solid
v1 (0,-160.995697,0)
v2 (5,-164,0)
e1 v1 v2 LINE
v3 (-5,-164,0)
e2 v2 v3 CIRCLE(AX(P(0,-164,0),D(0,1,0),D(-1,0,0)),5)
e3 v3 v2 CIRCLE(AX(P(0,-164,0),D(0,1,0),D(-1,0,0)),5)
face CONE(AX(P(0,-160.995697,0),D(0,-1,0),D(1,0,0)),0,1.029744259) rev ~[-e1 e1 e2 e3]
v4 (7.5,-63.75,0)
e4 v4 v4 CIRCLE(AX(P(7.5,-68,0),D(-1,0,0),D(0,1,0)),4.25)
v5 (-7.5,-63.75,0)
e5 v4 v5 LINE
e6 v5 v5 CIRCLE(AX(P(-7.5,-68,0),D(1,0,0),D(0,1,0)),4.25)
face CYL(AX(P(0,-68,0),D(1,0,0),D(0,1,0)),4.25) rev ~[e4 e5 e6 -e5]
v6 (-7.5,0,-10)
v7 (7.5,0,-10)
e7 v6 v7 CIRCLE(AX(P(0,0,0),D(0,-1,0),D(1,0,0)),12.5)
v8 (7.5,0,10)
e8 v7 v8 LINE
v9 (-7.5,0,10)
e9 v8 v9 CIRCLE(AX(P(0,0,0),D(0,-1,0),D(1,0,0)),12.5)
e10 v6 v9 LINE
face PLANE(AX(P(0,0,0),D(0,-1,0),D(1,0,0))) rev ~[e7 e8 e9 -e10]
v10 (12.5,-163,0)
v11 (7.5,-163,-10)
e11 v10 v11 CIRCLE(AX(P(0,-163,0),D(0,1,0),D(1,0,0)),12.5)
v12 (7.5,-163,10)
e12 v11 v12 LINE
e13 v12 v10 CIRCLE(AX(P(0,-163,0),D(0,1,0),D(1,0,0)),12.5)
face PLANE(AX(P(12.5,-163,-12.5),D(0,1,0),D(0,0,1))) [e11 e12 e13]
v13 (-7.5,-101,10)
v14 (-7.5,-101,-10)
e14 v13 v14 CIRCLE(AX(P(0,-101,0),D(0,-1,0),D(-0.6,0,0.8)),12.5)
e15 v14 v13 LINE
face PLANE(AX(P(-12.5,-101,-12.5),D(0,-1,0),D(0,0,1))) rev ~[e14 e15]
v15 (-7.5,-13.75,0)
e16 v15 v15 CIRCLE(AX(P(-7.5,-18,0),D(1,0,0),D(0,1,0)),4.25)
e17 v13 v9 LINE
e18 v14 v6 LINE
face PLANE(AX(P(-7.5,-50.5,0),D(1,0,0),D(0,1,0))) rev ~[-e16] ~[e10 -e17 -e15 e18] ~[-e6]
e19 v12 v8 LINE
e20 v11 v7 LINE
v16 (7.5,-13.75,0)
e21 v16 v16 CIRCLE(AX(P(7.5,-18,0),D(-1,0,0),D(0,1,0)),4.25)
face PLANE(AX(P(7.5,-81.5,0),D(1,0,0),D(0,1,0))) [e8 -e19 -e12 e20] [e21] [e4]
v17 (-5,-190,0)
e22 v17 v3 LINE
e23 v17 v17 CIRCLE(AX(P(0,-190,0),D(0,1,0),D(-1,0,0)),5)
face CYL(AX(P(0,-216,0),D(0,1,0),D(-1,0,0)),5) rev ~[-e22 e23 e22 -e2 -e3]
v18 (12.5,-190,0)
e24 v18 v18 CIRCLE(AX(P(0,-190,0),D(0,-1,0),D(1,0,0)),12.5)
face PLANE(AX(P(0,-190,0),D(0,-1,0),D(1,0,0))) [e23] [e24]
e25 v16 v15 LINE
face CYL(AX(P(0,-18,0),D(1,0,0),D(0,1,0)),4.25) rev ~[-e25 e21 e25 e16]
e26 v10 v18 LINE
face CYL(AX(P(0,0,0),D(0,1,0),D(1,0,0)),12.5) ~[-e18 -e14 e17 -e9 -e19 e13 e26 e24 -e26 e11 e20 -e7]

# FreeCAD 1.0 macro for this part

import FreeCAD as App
import Part
import Sketcher
Q = App.Units.Quantity


def add_polygon(sketch, points):
    """Adds a closed chain of lines whose ends are joined by coincident constraints."""
    first, n = sketch.GeometryCount, len(points)
    for a, b in zip(points, points[1:] + points[:1]):
        sketch.addGeometry(Part.LineSegment(App.Vector(*a, 0), App.Vector(*b, 0)), False)
    for i in range(n):
        sketch.addConstraint(Sketcher.Constraint("Coincident", first + i, 2, first + (i + 1) % n, 1))

doc = App.newDocument("Part")
params = doc.addObject("Spreadsheet::Sheet", "Params")
for row, (alias, value) in enumerate([
    ("sketch1_diameter", "25 mm"),
    ("pad1_length", "190 mm"),
    ("sketch2_diameter", "10 mm"),
    ("hole_diameter", "10 mm"),
    ("hole_depth", "26 mm"),
    ("sketch3_diameter", "8.5 mm"),
    ("sketch4_width", "101 mm"),
    ("sketch4_height", "25 mm"),
    ("pocket2_length", "5 mm"),
    ("sketch5_width", "163 mm"),
    ("sketch5_height", "25 mm"),
    ("pocket3_length", "5 mm"),
], start=1):
    params.set(f"A{row}", alias)
    params.set(f"B{row}", "=" + value)
    params.setAlias(f"B{row}", alias)

body = doc.addObject("PartDesign::Body", "Body")

# Sketch on XZ plane
sketch1 = body.newObject("Sketcher::SketchObject", "Sketch")
sketch1.AttachmentSupport = (doc.getObject("XZ_Plane"), [""])
sketch1.MapMode = "FlatFace"
sketch1.addGeometry(Part.Circle(App.Vector(0, 0, 0), App.Vector(0, 0, 1), 12), False)
sketch1.addConstraint([
    Sketcher.Constraint("Coincident", 0, 3, -1, 1),
    Sketcher.Constraint("Diameter", 0, Q("25 mm")),
])
sketch1.setExpression("Constraints[1]", "Params.sketch1_diameter")
pad1 = body.newObject("PartDesign::Pad", "Pad")
pad1.Profile = sketch1
pad1.setExpression("Length", "Params.pad1_length")

# Sketch on XZ plane
sketch2 = body.newObject("Sketcher::SketchObject", "Sketch001")
sketch2.AttachmentSupport = (doc.getObject("XZ_Plane"), [""])
sketch2.MapMode = "FlatFace"
sketch2.AttachmentOffset = App.Placement(App.Vector(0, 0, 190), App.Rotation())
sketch2.addGeometry(Part.Circle(App.Vector(0, 0, 0), App.Vector(0, 0, 1), 5), False)
sketch2.addConstraint([
    Sketcher.Constraint("Coincident", 0, 3, -1, 1),
    Sketcher.Constraint("Diameter", 0, Q("10 mm")),
])
sketch2.setExpression("Constraints[1]", "Params.sketch2_diameter")
doc.recompute()
hole = body.newObject("PartDesign::Hole", "Hole")
hole.Profile = sketch2
hole.ThreadType = "None"
hole.setExpression("Diameter", "Params.hole_diameter")
hole.DepthType = "Dimension"
hole.setExpression("Depth", "Params.hole_depth")
hole.DrillPoint = "Angled"
hole.DrillPointAngle = 118

# Sketch on YZ plane
sketch3 = body.newObject("Sketcher::SketchObject", "Sketch002")
sketch3.AttachmentSupport = (doc.getObject("YZ_Plane"), [""])
sketch3.MapMode = "FlatFace"
sketch3.addGeometry([
    Part.Circle(App.Vector(-18, 0, 0), App.Vector(0, 0, 1), 4.2),
    Part.Circle(App.Vector(-68, 0, 0), App.Vector(0, 0, 1), 4.2),
], False)
sketch3.addConstraint([
    Sketcher.Constraint("Equal", 0, 1),
    Sketcher.Constraint("PointOnObject", 0, 3, -1),
    Sketcher.Constraint("PointOnObject", 1, 3, -1),
    Sketcher.Constraint("Diameter", 0, Q("8.5 mm")),
    Sketcher.Constraint("DistanceX", 0, 3, -1, 1, Q("18 mm")),
    Sketcher.Constraint("DistanceX", 1, 3, -1, 1, Q("68 mm")),
])
sketch3.setExpression("Constraints[3]", "Params.sketch3_diameter")
pocket1 = body.newObject("PartDesign::Pocket", "Pocket")
pocket1.Profile = sketch3
pocket1.Type = "ThroughAll"
pocket1.Midplane = True

# Sketch on YZ plane
sketch4 = body.newObject("Sketcher::SketchObject", "Sketch003")
sketch4.AttachmentSupport = (doc.getObject("YZ_Plane"), [""])
sketch4.MapMode = "FlatFace"
sketch4.AttachmentOffset = App.Placement(App.Vector(0, 0, -12.5), App.Rotation())
add_polygon(sketch4, [(-101, 12), (-101, -12), (0, -12), (0, 12)])  # lines 0-3
sketch4.addConstraint([
    Sketcher.Constraint("Vertical", 0),
    Sketcher.Constraint("Horizontal", 1),
    Sketcher.Constraint("Vertical", 2),
    Sketcher.Constraint("Horizontal", 3),
    Sketcher.Constraint("Symmetric", 1, 2, 2, 2, -1, 1),
    Sketcher.Constraint("DistanceX", 1, 1, 1, 2, Q("101 mm")),
    Sketcher.Constraint("DistanceY", 0, 2, 0, 1, Q("25 mm")),
])
sketch4.setExpression("Constraints[9]", "Params.sketch4_width")
sketch4.setExpression("Constraints[10]", "Params.sketch4_height")
pocket2 = body.newObject("PartDesign::Pocket", "Pocket001")
pocket2.Profile = sketch4
pocket2.setExpression("Length", "Params.pocket2_length")
pocket2.Reversed = True

# Sketch on YZ plane
sketch5 = body.newObject("Sketcher::SketchObject", "Sketch004")
sketch5.AttachmentSupport = (doc.getObject("YZ_Plane"), [""])
sketch5.MapMode = "FlatFace"
sketch5.AttachmentOffset = App.Placement(App.Vector(0, 0, 12.5), App.Rotation())
add_polygon(sketch5, [(-163, 12), (-163, -12), (0, -12), (0, 12)])  # lines 0-3
sketch5.addConstraint([
    Sketcher.Constraint("Vertical", 0),
    Sketcher.Constraint("Horizontal", 1),
    Sketcher.Constraint("Vertical", 2),
    Sketcher.Constraint("Horizontal", 3),
    Sketcher.Constraint("Symmetric", 1, 2, 2, 2, -1, 1),
    Sketcher.Constraint("DistanceX", 1, 1, 1, 2, Q("163 mm")),
    Sketcher.Constraint("DistanceY", 0, 2, 0, 1, Q("25 mm")),
])
sketch5.setExpression("Constraints[9]", "Params.sketch5_width")
sketch5.setExpression("Constraints[10]", "Params.sketch5_height")
pocket3 = body.newObject("PartDesign::Pocket", "Pocket002")
pocket3.Profile = sketch5
pocket3.setExpression("Length", "Params.pocket3_length")

doc.recompute()
